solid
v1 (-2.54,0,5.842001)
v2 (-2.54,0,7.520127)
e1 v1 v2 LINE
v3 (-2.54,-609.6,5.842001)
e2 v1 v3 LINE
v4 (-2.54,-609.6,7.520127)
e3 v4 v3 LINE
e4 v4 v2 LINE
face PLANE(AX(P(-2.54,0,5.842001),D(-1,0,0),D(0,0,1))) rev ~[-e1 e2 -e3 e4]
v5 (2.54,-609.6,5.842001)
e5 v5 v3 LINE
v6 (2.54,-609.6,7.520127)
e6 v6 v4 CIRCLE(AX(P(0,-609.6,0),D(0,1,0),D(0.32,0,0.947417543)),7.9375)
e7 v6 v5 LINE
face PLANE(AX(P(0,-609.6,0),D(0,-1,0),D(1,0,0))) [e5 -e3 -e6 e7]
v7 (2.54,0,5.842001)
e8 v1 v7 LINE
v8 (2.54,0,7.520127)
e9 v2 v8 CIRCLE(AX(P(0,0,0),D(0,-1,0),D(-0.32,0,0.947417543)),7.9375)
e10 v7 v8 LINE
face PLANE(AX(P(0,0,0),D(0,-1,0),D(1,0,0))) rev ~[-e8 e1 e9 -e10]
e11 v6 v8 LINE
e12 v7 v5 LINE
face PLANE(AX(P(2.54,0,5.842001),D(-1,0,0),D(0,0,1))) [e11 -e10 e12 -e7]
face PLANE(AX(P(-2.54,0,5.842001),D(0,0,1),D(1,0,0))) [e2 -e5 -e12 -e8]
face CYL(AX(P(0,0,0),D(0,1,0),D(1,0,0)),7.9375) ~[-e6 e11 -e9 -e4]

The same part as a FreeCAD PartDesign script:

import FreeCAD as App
import Part
import Sketcher
from FreeCAD import Vector
Q = App.Units.Quantity


def add_polygon(sketch, points):
    """Adds a closed chain of lines whose ends are joined by coincident constraints."""
    first, n = sketch.GeometryCount, len(points)
    for a, b in zip(points, points[1:] + points[:1]):
        sketch.addGeometry(Part.LineSegment(App.Vector(*a, 0), App.Vector(*b, 0)), False)
    for i in range(n):
        sketch.addConstraint(Sketcher.Constraint("Coincident", first + i, 2, first + (i + 1) % n, 1))

doc = App.newDocument("Part")
body = doc.addObject("PartDesign::Body", "Body")

sketch1 = body.newObject("Sketcher::SketchObject", "Sketch")
sketch1.AttachmentSupport = (doc.getObject("XZ_Plane"), [""])
sketch1.MapMode = "FlatFace"
sketch1.addGeometry(Part.Circle(Vector(0, 0, 0), Vector(0, 0, 1), 8), False)
sketch1.addConstraint(Sketcher.Constraint("Coincident", 0, 3, -1, 1))
sketch1.addConstraint(Sketcher.Constraint("Diameter", 0, Q("0.625 in")))
pad1 = body.newObject("PartDesign::Pad", "Pad")
pad1.Profile = sketch1
pad1.Length = Q("24 in")

sketch2 = body.newObject("Sketcher::SketchObject", "Sketch001")
sketch2.AttachmentSupport = (doc.getObject("XZ_Plane"), [""])
sketch2.MapMode = "FlatFace"
add_polygon(sketch2, [(3, 6), (3, 16), (-3, 16), (-3, 6)])
sketch2.addConstraint(Sketcher.Constraint("Vertical", 0))
sketch2.addConstraint(Sketcher.Constraint("Horizontal", 1))
sketch2.addConstraint(Sketcher.Constraint("Vertical", 2))
sketch2.addConstraint(Sketcher.Constraint("Horizontal", 3))
sketch2.addConstraint(Sketcher.Constraint("DistanceX", 1, 2, 1, 1, Q("0.2 in")))
sketch2.addConstraint(Sketcher.Constraint("DistanceY", 0, 1, 0, 2, Q("0.4 in")))
sketch2.addConstraint(Sketcher.Constraint("DistanceX", -1, 1, 0, 2, Q("0.1 in")))
sketch2.addConstraint(Sketcher.Constraint("DistanceY", -1, 1, 0, 2, Q("0.63 in")))
pocket1 = body.newObject("PartDesign::Pocket", "Pocket")
pocket1.Profile = sketch2
pocket1.Length = Q("28 in")
pocket1.Reversed = True

doc.recompute()
